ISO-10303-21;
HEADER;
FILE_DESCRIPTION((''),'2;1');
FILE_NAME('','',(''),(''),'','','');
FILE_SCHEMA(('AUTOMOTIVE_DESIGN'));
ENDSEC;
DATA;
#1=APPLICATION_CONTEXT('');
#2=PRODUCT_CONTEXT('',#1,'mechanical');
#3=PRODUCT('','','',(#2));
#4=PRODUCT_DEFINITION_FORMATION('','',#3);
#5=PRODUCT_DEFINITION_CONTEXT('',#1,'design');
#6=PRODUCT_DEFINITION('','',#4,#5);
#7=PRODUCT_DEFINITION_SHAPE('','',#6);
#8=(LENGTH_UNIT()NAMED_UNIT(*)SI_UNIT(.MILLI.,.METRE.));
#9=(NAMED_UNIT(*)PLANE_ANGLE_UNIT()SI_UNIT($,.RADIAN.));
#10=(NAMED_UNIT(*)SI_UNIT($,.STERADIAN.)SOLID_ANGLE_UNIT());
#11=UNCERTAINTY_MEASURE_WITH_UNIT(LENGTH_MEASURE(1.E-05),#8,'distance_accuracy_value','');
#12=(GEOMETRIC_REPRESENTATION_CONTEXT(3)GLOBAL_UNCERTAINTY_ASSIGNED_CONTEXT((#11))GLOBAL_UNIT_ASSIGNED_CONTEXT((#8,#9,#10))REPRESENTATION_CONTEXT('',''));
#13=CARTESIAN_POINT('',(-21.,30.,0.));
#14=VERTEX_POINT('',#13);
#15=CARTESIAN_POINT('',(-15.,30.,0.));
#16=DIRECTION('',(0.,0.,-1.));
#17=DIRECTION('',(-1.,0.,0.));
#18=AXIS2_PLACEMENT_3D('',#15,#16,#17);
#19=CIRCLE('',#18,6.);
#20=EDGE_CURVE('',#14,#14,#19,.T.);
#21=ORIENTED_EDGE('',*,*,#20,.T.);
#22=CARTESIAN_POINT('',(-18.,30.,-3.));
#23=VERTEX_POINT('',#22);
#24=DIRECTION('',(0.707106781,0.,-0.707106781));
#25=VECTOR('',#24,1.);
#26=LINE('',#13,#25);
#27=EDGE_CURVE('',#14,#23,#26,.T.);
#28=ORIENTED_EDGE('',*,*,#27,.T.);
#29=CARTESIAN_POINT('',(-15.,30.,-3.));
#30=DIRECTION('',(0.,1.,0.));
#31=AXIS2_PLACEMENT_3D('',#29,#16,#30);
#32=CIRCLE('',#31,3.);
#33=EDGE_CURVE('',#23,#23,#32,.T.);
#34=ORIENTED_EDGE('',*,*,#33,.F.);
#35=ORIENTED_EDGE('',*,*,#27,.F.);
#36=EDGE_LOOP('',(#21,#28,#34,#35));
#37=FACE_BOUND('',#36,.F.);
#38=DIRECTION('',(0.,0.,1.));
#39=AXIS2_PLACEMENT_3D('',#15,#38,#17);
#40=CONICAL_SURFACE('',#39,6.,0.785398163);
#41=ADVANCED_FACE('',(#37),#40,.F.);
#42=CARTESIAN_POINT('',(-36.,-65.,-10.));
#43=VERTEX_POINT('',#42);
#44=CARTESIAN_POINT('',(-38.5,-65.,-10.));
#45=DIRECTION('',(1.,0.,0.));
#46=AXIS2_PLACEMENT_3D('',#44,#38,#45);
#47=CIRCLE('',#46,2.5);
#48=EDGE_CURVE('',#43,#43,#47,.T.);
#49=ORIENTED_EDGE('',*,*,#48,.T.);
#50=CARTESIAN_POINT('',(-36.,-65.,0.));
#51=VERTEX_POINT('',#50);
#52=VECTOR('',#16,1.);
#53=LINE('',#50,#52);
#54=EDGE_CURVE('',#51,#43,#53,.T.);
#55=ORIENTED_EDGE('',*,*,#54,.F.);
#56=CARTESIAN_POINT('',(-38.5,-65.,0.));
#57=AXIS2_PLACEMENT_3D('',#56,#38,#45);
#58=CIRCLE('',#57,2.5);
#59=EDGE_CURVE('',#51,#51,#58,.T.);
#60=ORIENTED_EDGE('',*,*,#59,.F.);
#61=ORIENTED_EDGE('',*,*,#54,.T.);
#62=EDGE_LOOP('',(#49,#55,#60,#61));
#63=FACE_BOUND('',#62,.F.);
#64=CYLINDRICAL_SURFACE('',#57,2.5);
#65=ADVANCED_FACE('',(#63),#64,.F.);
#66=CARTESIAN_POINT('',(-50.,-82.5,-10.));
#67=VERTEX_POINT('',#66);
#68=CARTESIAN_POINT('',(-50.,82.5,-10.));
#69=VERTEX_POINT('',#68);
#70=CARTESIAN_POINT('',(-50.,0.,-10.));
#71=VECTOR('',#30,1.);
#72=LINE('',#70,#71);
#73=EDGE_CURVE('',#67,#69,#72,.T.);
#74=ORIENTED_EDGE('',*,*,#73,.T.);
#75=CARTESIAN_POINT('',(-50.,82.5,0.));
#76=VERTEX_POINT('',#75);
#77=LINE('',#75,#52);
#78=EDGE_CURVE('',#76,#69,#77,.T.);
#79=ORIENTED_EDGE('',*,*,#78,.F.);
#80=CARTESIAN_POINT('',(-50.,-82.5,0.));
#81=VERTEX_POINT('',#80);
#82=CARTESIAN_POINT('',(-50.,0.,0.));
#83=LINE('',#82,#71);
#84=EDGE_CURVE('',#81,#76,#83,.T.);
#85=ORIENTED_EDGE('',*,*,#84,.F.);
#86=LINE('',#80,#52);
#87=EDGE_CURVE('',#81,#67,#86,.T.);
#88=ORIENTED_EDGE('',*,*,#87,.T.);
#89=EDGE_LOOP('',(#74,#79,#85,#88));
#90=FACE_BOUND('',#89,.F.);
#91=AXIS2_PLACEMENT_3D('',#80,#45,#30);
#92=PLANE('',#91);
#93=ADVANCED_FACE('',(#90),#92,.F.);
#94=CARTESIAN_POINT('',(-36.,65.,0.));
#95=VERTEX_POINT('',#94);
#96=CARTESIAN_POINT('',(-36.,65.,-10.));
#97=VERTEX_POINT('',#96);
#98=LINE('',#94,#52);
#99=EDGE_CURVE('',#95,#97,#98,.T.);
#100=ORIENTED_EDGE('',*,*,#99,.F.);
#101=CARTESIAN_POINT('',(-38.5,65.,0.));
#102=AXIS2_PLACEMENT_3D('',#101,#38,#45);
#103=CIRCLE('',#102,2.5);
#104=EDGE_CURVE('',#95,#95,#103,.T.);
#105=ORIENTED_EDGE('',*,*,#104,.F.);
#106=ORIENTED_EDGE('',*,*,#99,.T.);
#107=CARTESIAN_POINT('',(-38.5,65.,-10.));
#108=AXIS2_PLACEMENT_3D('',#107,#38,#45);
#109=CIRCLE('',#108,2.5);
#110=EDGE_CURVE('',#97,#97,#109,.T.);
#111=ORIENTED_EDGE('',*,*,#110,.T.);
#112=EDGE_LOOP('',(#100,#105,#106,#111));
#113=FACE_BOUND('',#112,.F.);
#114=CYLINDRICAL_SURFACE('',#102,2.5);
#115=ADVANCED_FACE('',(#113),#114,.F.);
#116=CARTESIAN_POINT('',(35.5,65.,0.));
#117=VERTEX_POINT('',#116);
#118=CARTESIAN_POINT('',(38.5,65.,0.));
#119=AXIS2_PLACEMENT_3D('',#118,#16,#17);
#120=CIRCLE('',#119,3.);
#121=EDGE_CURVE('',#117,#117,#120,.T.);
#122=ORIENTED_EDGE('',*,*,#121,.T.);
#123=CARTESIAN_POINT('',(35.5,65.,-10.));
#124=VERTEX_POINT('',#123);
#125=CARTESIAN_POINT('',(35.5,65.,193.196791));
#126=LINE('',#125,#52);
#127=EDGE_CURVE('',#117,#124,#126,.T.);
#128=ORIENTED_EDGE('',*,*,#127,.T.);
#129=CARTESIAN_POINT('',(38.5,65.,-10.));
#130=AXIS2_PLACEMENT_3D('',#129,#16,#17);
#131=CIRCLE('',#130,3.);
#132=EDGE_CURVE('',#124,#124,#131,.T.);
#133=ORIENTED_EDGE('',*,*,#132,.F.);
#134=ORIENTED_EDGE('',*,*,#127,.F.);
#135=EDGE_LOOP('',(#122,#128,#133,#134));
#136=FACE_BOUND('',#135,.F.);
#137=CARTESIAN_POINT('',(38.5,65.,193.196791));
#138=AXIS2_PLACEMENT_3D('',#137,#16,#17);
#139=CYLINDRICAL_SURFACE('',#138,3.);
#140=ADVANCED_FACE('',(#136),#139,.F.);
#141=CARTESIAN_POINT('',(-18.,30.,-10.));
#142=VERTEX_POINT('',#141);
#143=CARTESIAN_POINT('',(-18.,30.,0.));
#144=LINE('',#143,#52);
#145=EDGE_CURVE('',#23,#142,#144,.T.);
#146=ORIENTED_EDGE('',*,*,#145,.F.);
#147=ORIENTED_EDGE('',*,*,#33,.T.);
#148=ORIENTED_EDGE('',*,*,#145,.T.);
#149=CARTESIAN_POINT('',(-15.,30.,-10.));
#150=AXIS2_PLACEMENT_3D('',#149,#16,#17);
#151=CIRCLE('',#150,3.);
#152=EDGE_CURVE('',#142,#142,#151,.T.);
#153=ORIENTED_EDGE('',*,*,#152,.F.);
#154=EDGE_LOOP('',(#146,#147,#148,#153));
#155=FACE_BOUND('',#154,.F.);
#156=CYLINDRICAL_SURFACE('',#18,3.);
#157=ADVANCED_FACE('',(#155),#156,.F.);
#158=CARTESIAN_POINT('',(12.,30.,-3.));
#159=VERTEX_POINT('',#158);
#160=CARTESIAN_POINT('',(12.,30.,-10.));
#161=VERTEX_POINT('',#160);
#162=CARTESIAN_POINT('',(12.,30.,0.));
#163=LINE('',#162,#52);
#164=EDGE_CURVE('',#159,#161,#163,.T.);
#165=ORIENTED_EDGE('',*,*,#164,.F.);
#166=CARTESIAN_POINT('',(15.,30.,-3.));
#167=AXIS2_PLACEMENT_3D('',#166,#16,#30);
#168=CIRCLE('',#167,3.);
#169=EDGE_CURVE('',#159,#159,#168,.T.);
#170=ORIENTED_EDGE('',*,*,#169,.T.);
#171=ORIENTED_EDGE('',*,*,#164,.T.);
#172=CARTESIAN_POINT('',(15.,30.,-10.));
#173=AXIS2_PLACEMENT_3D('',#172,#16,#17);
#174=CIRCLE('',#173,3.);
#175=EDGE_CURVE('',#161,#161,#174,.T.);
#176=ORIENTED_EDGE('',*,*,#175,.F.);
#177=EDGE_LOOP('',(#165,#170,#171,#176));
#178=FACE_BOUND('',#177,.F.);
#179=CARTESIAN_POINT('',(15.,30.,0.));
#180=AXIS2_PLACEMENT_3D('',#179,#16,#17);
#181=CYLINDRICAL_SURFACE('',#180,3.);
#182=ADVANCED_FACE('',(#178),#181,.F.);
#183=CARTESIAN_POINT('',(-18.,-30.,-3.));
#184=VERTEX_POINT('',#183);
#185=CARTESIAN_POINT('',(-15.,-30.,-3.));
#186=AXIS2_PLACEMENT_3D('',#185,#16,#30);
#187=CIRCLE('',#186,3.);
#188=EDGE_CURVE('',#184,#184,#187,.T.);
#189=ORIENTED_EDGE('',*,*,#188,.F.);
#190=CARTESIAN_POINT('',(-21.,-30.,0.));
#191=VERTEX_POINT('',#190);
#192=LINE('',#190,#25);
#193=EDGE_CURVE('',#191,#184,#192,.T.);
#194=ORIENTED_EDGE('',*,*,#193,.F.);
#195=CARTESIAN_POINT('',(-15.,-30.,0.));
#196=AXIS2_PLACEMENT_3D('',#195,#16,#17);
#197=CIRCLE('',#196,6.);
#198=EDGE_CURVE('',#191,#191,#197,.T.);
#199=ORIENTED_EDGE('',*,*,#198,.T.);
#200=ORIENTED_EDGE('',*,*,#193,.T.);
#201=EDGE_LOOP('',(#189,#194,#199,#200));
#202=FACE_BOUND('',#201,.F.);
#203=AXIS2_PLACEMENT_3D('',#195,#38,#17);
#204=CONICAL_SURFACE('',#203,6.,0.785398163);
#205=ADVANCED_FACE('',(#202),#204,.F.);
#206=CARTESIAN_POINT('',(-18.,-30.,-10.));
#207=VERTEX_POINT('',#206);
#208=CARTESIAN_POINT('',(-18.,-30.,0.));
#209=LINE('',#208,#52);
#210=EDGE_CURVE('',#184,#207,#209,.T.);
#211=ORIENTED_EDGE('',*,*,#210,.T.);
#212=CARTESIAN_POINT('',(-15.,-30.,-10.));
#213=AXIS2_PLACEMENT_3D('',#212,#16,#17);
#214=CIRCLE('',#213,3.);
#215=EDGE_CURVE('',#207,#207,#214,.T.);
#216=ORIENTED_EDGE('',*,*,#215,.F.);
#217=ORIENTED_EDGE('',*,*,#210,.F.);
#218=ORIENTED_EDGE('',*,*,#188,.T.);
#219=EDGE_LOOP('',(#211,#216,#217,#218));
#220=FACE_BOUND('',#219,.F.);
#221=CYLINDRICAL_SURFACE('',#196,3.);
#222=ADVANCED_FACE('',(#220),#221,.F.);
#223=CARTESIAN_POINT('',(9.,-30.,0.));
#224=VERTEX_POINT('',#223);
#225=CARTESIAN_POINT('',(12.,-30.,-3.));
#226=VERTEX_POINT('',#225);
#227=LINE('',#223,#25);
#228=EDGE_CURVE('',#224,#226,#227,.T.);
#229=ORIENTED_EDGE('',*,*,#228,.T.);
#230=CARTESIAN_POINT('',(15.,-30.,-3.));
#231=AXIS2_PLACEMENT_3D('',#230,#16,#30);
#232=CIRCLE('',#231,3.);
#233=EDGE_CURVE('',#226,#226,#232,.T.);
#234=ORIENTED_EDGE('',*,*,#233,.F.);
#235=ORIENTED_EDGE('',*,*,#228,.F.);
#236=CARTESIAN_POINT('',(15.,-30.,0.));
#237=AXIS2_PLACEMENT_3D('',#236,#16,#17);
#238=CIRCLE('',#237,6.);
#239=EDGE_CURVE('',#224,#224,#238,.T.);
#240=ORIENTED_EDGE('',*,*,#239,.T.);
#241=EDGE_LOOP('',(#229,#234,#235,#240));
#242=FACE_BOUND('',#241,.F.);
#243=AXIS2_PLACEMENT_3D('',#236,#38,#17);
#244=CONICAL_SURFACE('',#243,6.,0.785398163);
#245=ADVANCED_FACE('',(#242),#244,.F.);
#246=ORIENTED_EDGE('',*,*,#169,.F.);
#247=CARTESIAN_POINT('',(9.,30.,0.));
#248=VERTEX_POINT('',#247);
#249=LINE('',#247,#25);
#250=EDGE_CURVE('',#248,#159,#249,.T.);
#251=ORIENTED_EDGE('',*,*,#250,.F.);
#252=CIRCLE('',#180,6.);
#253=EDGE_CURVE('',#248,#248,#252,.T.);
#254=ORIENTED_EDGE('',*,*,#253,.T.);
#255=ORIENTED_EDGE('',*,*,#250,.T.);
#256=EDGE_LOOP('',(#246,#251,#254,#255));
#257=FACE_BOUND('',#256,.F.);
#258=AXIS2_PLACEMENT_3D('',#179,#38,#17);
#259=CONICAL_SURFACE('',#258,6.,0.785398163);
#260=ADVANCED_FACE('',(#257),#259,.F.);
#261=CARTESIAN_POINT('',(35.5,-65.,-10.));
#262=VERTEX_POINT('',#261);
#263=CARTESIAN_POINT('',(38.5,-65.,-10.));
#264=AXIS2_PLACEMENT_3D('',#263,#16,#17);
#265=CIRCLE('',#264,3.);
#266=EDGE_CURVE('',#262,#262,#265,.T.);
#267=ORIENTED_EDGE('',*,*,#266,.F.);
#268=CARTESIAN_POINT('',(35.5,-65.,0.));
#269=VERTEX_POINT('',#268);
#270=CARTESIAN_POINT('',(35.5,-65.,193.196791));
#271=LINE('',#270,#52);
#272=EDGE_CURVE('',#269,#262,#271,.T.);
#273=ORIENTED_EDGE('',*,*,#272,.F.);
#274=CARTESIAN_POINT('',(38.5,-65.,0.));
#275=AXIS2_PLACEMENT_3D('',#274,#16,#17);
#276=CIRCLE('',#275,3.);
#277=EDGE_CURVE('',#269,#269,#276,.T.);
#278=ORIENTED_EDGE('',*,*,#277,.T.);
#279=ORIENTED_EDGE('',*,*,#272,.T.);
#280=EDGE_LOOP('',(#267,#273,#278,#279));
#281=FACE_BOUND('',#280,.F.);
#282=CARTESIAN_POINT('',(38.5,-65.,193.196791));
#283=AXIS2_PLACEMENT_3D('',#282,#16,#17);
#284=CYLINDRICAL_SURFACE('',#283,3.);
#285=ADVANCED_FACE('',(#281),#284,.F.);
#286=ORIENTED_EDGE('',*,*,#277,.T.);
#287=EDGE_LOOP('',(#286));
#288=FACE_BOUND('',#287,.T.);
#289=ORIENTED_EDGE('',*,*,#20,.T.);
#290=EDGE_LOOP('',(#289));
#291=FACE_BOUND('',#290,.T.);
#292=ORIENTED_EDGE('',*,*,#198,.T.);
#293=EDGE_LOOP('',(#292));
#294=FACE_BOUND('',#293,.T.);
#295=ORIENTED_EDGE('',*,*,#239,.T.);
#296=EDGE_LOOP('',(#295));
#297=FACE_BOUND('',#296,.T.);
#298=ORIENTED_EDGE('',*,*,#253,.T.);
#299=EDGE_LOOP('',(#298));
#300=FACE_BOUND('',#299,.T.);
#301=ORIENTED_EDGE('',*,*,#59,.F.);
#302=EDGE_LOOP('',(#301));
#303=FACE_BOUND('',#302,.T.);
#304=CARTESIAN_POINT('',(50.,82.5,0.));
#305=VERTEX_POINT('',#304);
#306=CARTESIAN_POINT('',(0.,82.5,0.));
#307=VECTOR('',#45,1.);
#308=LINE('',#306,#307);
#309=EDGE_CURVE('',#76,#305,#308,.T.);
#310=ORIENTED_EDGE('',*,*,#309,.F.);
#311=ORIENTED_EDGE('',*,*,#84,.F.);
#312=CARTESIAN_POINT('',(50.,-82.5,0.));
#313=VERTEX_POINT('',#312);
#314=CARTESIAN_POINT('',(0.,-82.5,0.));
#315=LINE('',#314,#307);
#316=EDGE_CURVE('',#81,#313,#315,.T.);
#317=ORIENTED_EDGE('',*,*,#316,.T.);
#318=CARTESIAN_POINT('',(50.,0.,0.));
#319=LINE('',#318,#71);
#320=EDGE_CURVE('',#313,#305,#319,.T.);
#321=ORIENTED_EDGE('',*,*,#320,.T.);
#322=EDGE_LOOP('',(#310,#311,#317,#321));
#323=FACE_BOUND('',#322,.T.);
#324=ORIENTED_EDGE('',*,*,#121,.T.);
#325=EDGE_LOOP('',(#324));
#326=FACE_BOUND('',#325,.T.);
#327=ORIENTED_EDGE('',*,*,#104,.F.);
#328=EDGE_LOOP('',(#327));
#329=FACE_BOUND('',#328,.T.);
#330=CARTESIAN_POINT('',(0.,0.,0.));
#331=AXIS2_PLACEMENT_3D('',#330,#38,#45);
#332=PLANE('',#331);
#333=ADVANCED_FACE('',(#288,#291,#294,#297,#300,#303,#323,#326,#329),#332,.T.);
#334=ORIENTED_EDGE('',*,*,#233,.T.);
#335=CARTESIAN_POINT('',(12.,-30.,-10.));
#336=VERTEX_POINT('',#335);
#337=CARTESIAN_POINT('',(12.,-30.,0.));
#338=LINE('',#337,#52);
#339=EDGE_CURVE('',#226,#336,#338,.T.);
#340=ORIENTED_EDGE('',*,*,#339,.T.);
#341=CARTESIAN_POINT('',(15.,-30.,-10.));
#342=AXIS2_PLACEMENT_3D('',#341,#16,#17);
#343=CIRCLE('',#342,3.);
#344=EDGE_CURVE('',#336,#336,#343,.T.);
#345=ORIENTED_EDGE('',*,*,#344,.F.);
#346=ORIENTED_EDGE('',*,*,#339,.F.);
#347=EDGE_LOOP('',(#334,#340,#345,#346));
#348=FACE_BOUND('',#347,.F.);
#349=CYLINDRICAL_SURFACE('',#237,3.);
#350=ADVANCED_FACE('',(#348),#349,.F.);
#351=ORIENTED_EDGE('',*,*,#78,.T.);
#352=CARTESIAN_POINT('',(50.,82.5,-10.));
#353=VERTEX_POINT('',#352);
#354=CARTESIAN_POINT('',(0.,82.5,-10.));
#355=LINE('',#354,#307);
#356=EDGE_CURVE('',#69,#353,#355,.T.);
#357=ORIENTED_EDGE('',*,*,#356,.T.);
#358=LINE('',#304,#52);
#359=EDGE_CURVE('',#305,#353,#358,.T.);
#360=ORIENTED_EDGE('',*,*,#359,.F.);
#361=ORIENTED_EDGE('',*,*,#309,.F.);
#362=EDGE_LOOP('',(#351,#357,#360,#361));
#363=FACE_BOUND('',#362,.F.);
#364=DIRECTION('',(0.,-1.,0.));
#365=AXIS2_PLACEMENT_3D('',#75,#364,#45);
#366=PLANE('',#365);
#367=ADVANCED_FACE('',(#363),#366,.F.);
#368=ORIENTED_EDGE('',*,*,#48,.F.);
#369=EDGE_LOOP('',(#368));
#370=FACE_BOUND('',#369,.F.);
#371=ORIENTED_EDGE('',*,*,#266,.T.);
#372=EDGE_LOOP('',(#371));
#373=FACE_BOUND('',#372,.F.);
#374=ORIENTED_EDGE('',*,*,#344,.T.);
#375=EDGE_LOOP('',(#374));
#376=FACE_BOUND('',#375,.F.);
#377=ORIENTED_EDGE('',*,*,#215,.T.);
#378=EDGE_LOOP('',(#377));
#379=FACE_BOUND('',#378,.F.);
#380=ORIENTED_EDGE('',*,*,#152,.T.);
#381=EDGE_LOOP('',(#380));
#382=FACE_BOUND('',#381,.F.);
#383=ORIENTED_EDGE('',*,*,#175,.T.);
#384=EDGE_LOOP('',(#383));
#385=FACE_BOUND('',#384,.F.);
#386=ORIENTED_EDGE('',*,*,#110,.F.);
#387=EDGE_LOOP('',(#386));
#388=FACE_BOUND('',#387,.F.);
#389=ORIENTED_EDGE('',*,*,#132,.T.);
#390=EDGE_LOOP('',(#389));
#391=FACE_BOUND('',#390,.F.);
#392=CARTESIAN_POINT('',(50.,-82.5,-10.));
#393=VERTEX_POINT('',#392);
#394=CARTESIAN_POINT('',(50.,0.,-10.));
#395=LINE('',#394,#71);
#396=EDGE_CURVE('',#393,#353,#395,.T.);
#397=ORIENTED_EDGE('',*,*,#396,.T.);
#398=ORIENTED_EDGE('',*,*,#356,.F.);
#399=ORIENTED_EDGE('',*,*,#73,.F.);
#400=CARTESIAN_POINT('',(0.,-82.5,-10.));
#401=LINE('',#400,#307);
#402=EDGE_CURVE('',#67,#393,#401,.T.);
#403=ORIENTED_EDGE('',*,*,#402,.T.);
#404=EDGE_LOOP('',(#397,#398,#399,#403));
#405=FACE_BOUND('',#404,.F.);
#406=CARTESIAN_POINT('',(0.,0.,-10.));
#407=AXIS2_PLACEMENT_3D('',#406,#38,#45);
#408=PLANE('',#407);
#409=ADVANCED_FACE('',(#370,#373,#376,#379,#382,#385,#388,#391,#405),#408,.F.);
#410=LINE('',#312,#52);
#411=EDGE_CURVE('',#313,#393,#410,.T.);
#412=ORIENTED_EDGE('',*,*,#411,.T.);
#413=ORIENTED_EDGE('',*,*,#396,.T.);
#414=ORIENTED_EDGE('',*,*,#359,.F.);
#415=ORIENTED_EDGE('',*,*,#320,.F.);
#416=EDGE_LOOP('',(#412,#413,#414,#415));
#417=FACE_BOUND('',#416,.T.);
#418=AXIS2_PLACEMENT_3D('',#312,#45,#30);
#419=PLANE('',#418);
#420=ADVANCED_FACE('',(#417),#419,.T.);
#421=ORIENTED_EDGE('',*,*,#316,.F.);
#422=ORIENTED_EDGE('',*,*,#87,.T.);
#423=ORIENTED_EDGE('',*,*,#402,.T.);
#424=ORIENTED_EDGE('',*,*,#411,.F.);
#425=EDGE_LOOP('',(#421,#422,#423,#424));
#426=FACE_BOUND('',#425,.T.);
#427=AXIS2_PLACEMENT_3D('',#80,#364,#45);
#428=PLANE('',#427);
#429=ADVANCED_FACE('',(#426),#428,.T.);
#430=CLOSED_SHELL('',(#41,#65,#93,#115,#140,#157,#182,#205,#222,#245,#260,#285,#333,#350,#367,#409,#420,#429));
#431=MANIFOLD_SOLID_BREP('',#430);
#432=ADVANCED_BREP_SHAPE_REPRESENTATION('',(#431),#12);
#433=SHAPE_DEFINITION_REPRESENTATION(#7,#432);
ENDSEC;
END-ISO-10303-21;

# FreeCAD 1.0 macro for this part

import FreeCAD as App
import Part
import Sketcher
from FreeCAD import Vector

doc = App.newDocument("Part")
body = doc.addObject("PartDesign::Body", "Body")

# Sketch on XY plane
sketch1 = body.newObject("Sketcher::SketchObject", "Sketch")
sketch1.AttachmentSupport = (doc.getObject("XY_Plane"), [""])
sketch1.MapMode = "FlatFace"
sketch1.addGeometry([
    Part.LineSegment(Vector(-50, 82.5, 0), Vector(-50, -82.5, 0)),  # 0
    Part.LineSegment(Vector(-50, -82.5, 0), Vector(50, -82.5, 0)),  # 1
    Part.LineSegment(Vector(50, -82.5, 0), Vector(50, 82.5, 0)),  # 2
    Part.LineSegment(Vector(50, 82.5, 0), Vector(-50, 82.5, 0)),  # 3
    Part.Circle(Vector(-38.5, -65, 0), Vector(0, 0, 1), 2.5),  # 4
    Part.Circle(Vector(-38.5, 65, 0), Vector(0, 0, 1), 2.5),  # 5
], False)
sketch1.addConstraint([
    Sketcher.Constraint("Coincident", 0, 2, 1, 1),
    Sketcher.Constraint("Coincident", 1, 2, 2, 1),
    Sketcher.Constraint("Coincident", 2, 2, 3, 1),
    Sketcher.Constraint("Coincident", 3, 2, 0, 1),
    Sketcher.Constraint("Vertical", 0),
    Sketcher.Constraint("Horizontal", 1),
    Sketcher.Constraint("Vertical", 2),
    Sketcher.Constraint("Horizontal", 3),
    Sketcher.Constraint("Equal", 4, 5),
    Sketcher.Constraint("Symmetric", 0, 2, 2, 2, -1, 1),
    Sketcher.Constraint("Symmetric", 4, 3, 5, 3, -1),
    Sketcher.Constraint("Diameter", 4, 5.0),
    Sketcher.Constraint("DistanceX", 1, 1, 1, 2, 100.0),
    Sketcher.Constraint("DistanceY", 0, 2, 0, 1, 165.0),
    Sketcher.Constraint("DistanceY", 4, 3, -1, 1, 65.0),
    Sketcher.Constraint("DistanceX", 4, 3, -1, 1, 38.5),
])
pad1 = body.newObject("PartDesign::Pad", "Pad")
pad1.Profile = sketch1
pad1.Length = 10
pad1.Reversed = True

# Sketch on XY plane
sketch2 = body.newObject("Sketcher::SketchObject", "Sketch001")
sketch2.AttachmentSupport = (doc.getObject("XY_Plane"), [""])
sketch2.MapMode = "FlatFace"
sketch2.addGeometry([
    Part.Circle(Vector(-15, 30, 0), Vector(0, 0, 1), 3),
    Part.Circle(Vector(15, 30, 0), Vector(0, 0, 1), 3),
    Part.Circle(Vector(-15, -30, 0), Vector(0, 0, 1), 3),
    Part.Circle(Vector(15, -30, 0), Vector(0, 0, 1), 3),
], False)
sketch2.addConstraint([
    Sketcher.Constraint("Equal", 0, 1),
    Sketcher.Constraint("Equal", 1, 2),
    Sketcher.Constraint("Equal", 2, 3),
    Sketcher.Constraint("Symmetric", 1, 3, 2, 3, -1, 1),
    Sketcher.Constraint("Symmetric", 0, 3, 3, 3, -1, 1),
    Sketcher.Constraint("Symmetric", 0, 3, 1, 3, -2),
    Sketcher.Constraint("Diameter", 0, 6.0),
    Sketcher.Constraint("DistanceX", 0, 3, -1, 1, 15.0),
    Sketcher.Constraint("DistanceY", -1, 1, 0, 3, 30.0),
])
doc.recompute()
hole = body.newObject("PartDesign::Hole", "Hole")
hole.Profile = sketch2
hole.ThreadType = "None"
hole.Diameter = 6
hole.DepthType = "ThroughAll"
hole.HoleCutType = "Countersink"
hole.HoleCutDiameter = 12
hole.HoleCutCountersinkAngle = 90

# Sketch on XY plane
sketch3 = body.newObject("Sketcher::SketchObject", "Sketch002")
sketch3.AttachmentSupport = (doc.getObject("XY_Plane"), [""])
sketch3.MapMode = "FlatFace"
sketch3.addGeometry([
    Part.Circle(Vector(38.5, 65, 0), Vector(0, 0, 1), 3),
    Part.Circle(Vector(38.5, -65, 0), Vector(0, 0, 1), 3),
], False)
sketch3.addConstraint([
    Sketcher.Constraint("Equal", 0, 1),
    Sketcher.Constraint("Symmetric", 0, 3, 1, 3, -1),
    Sketcher.Constraint("Diameter", 0, 6.0),
    Sketcher.Constraint("DistanceY", -1, 1, 0, 3, 65.0),
    Sketcher.Constraint("DistanceX", -1, 1, 0, 3, 38.5),
])
doc.recompute()
hole2 = body.newObject("PartDesign::Hole", "Hole001")
hole2.Profile = sketch3
hole2.ThreadType = "None"
hole2.Diameter = 6
hole2.DepthType = "ThroughAll"

doc.recompute()
